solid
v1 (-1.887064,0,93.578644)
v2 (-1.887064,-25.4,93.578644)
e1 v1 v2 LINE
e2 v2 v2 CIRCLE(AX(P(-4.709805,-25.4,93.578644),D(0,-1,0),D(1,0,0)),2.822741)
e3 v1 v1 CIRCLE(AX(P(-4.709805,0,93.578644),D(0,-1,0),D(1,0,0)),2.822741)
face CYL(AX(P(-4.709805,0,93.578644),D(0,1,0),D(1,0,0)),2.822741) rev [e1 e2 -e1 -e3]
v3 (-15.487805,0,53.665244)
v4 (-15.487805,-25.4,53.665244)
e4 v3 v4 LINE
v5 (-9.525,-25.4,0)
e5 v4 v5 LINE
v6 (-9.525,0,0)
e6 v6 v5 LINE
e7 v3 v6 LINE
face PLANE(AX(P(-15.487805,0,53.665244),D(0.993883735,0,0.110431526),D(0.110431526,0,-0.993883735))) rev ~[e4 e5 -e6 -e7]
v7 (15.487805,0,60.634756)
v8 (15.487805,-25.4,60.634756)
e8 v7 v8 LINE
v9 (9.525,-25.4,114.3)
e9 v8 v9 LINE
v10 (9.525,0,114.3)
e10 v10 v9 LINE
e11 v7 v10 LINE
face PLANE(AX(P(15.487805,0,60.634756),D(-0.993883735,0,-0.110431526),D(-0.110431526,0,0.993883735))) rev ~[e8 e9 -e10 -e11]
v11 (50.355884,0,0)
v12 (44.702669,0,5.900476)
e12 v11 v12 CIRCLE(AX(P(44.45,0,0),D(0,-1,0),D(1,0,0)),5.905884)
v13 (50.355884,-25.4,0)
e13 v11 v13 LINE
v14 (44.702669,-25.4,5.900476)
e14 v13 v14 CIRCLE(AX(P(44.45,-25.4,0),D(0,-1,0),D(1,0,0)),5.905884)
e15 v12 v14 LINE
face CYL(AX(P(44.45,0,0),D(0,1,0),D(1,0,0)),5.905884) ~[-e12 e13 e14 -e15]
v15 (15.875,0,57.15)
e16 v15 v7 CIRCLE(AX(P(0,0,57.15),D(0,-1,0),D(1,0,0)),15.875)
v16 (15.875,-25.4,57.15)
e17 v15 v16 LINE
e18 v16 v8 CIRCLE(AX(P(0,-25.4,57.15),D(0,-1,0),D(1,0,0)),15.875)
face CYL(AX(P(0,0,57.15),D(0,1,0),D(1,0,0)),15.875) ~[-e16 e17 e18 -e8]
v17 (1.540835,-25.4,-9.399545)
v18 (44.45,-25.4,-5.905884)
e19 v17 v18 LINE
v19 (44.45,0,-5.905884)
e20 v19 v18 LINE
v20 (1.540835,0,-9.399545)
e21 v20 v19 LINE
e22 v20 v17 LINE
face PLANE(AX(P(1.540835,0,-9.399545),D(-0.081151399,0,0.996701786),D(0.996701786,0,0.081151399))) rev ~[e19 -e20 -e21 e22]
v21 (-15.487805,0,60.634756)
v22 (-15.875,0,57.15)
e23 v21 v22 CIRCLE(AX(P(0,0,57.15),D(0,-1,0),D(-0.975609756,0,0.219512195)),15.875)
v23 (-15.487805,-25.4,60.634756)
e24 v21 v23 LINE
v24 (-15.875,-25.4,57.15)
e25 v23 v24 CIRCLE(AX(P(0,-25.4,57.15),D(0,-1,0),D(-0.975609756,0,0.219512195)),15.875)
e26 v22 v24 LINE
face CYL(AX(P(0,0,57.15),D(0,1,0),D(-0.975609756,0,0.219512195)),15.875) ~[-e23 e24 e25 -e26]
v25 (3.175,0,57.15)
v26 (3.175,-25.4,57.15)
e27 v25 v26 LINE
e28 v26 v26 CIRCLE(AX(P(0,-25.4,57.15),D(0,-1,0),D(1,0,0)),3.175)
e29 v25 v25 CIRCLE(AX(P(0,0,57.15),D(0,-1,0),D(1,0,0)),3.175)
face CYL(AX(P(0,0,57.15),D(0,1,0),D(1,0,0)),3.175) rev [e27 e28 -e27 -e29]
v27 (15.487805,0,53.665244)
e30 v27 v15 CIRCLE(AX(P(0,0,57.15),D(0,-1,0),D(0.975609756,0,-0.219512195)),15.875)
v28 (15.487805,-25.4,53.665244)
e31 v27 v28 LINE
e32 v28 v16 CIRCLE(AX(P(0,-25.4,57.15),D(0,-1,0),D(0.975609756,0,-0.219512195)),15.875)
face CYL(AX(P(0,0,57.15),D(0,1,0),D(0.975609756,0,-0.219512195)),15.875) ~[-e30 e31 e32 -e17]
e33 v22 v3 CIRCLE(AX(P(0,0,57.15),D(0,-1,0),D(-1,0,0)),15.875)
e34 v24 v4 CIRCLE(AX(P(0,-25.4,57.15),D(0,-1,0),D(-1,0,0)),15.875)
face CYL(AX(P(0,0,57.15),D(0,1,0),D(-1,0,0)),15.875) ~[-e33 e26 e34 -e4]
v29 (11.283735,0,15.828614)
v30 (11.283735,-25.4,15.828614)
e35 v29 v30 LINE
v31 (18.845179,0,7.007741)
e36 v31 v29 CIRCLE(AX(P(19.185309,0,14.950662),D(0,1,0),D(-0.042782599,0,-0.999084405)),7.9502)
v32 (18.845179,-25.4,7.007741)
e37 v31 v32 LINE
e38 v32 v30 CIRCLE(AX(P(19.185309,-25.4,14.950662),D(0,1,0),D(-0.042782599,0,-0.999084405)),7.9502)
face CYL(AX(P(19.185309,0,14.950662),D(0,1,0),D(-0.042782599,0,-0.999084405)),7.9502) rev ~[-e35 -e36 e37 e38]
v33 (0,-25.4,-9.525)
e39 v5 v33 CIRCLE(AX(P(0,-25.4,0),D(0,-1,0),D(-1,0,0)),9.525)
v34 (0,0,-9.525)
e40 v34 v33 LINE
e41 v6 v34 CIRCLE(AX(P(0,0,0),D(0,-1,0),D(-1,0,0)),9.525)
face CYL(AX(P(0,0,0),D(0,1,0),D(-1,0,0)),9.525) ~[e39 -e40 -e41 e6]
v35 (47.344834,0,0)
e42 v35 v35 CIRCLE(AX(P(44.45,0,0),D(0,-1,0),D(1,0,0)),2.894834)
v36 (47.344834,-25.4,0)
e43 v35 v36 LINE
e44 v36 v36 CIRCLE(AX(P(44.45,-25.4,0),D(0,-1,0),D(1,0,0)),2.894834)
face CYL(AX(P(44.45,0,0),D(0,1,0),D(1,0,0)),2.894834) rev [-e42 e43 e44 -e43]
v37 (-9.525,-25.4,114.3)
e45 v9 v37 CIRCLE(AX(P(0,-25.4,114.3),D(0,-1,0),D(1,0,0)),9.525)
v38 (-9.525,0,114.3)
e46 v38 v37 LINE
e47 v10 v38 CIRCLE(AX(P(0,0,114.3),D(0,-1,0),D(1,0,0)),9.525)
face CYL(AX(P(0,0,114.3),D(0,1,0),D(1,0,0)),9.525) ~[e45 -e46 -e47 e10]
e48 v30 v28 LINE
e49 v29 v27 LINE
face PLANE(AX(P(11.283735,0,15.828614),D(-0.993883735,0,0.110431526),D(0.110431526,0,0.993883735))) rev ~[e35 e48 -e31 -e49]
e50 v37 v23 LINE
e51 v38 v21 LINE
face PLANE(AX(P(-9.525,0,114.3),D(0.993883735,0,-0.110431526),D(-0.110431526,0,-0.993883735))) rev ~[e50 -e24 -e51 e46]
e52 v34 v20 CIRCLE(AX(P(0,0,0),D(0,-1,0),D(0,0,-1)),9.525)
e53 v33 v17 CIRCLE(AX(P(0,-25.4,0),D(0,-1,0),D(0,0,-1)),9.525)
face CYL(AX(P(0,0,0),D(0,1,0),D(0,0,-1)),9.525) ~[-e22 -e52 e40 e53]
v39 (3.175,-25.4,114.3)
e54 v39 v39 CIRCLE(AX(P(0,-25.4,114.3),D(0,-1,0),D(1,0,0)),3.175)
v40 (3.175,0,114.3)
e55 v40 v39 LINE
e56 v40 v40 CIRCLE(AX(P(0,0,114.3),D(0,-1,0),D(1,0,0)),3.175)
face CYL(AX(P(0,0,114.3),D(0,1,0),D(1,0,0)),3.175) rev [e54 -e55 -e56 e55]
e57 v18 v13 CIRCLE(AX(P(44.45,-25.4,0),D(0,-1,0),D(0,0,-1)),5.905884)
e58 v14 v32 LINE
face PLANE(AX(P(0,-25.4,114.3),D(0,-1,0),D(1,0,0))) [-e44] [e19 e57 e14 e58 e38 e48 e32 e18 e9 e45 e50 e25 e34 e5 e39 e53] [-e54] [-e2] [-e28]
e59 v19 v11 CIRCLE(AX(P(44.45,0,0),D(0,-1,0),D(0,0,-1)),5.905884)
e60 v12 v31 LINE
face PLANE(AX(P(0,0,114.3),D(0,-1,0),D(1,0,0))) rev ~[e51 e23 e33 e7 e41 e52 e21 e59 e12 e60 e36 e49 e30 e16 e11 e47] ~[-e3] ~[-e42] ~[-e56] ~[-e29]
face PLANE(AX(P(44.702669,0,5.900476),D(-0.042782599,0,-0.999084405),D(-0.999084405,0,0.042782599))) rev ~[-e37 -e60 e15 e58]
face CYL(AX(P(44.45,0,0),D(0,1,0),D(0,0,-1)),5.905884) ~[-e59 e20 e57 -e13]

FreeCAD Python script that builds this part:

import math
import FreeCAD as App
import Part
import Sketcher
from FreeCAD import Vector
Q = App.Units.Quantity

doc = App.newDocument("Part")
body = doc.addObject("PartDesign::Body", "Body")

# Sketch on XZ plane
sketch1 = body.newObject("Sketcher::SketchObject", "Sketch")
sketch1.AttachmentSupport = (doc.getObject("XZ_Plane"), [""])
sketch1.MapMode = "FlatFace"
sketch1.addGeometry([
    Part.ArcOfCircle(Part.Circle(Vector(0, 114.3, 0), Vector(0, 0, 1), 9.5), math.radians(0), math.radians(180)),  # 0
    Part.LineSegment(Vector(-9.5, 114.3, 0), Vector(-15.5, 60.6, 0)),  # 1
    Part.ArcOfCircle(Part.Circle(Vector(0, 57.1, 0), Vector(0, 0, 1), 15.9), math.radians(167.32), math.radians(180)),  # 2
    Part.ArcOfCircle(Part.Circle(Vector(0, 57.2, 0), Vector(0, 0, 1), 15.9), math.radians(-180), math.radians(-167.32)),  # 3
    Part.LineSegment(Vector(-15.5, 53.7, 0), Vector(-9.5, 0, 0)),  # 4
    Part.ArcOfCircle(Part.Circle(Vector(0, 0, 0), Vector(0, 0, 1), 9.5), math.radians(180), math.radians(270)),  # 5
    Part.ArcOfCircle(Part.Circle(Vector(0, 0, 0), Vector(0, 0, 1), 9.5), math.radians(-90), math.radians(-80.69)),  # 6
    Part.LineSegment(Vector(1.5, -9.4, 0), Vector(44.5, -5.9, 0)),  # 7
    Part.ArcOfCircle(Part.Circle(Vector(44.5, 0, 0), Vector(0, 0, 1), 5.9), math.radians(-90), math.radians(0)),  # 8
    Part.ArcOfCircle(Part.Circle(Vector(44.5, 0, 0), Vector(0, 0, 1), 5.9), math.radians(0), math.radians(88)),  # 9
    Part.LineSegment(Vector(44.7, 5.9, 0), Vector(18.8, 7, 0)),  # 10
    Part.ArcOfCircle(Part.Circle(Vector(19.2, 15, 0), Vector(0, 0, 1), 8), math.radians(174), math.radians(268)),  # 11
    Part.LineSegment(Vector(11.3, 15.8, 0), Vector(15.5, 53.7, 0)),  # 12
    Part.ArcOfCircle(Part.Circle(Vector(0, 57.2, 0), Vector(0, 0, 1), 15.9), math.radians(-12.68), math.radians(0)),  # 13
    Part.ArcOfCircle(Part.Circle(Vector(0, 57.1, 0), Vector(0, 0, 1), 15.9), math.radians(0), math.radians(12.68)),  # 14
    Part.LineSegment(Vector(15.5, 60.6, 0), Vector(9.5, 114.3, 0)),  # 15
    Part.Circle(Vector(0, 57.1, 0), Vector(0, 0, 1), 3.2),  # 16
    Part.Circle(Vector(44.5, 0, 0), Vector(0, 0, 1), 2.9),  # 17
    Part.Circle(Vector(-4.7, 93.6, 0), Vector(0, 0, 1), 2.8),  # 18
    Part.Circle(Vector(0, 114.3, 0), Vector(0, 0, 1), 3.2),  # 19
], False)
sketch1.addConstraint([
    Sketcher.Constraint("Coincident", 0, 2, 1, 1),
    Sketcher.Constraint("Coincident", 1, 2, 2, 1),
    Sketcher.Constraint("Tangent", 2, 2, 3, 1),
    Sketcher.Constraint("Coincident", 3, 2, 4, 1),
    Sketcher.Constraint("Coincident", 4, 2, 5, 1),
    Sketcher.Constraint("Tangent", 5, 2, 6, 1),
    Sketcher.Constraint("Coincident", 6, 2, 7, 1),
    Sketcher.Constraint("Coincident", 7, 2, 8, 1),
    Sketcher.Constraint("Tangent", 8, 2, 9, 1),
    Sketcher.Constraint("Tangent", 9, 2, 10, 1),
    Sketcher.Constraint("Tangent", 10, 2, 11, 2),
    Sketcher.Constraint("Tangent", 11, 1, 12, 1),
    Sketcher.Constraint("Coincident", 12, 2, 13, 1),
    Sketcher.Constraint("Tangent", 13, 2, 14, 1),
    Sketcher.Constraint("Coincident", 14, 2, 15, 1),
    Sketcher.Constraint("Coincident", 15, 2, 0, 1),
    Sketcher.Constraint("Coincident", 5, 3, -1, 1),
    Sketcher.Constraint("Coincident", 13, 3, 2, 3),
    Sketcher.Constraint("Coincident", 16, 3, 2, 3),
    Sketcher.Constraint("Coincident", 17, 3, 8, 3),
    Sketcher.Constraint("Coincident", 19, 3, 0, 3),
    Sketcher.Constraint("Equal", 2, 3),
    Sketcher.Constraint("Equal", 0, 5),
    Sketcher.Constraint("Equal", 5, 6),
    Sketcher.Constraint("Equal", 8, 9),
    Sketcher.Constraint("Equal", 3, 13),
    Sketcher.Constraint("Equal", 13, 14),
    Sketcher.Constraint("Equal", 16, 19),
    Sketcher.Constraint("Symmetric", 3, 2, 12, 2, -2),
    Sketcher.Constraint("Symmetric", 0, 2, 15, 2, -2),
    Sketcher.Constraint("PointOnObject", 8, 3, -1),
    Sketcher.Constraint("PointOnObject", 4, 2, -1),
    Sketcher.Constraint("PointOnObject", 5, 2, -2),
    Sketcher.Constraint("PointOnObject", 8, 2, -1),
    Sketcher.Constraint("Parallel", 1, 12),
    Sketcher.Constraint("Parallel", 4, 15),
    Sketcher.Constraint("Horizontal", 19, 3, 0, 2),
    Sketcher.Constraint("Horizontal", 16, 3, 2, 2),
    Sketcher.Constraint("Horizontal", 2, 2, 13, 2),
    Sketcher.Constraint("Horizontal", 1, 2, 14, 2),
    Sketcher.Constraint("Vertical", 1, 2, 3, 2),
    Sketcher.Constraint("Vertical", 17, 3, 7, 2),
    Sketcher.Constraint("Diameter", 16, Q("0.25 in")),
    Sketcher.Constraint("Radius", 0, Q("0.375 in")),
    Sketcher.Constraint("Radius", 2, Q("0.625 in")),
    Sketcher.Constraint("Radius", 11, Q("0.313 in")),
    Sketcher.Constraint("DistanceY", -1, 1, 0, 3, Q("4.5 in")),
    Sketcher.Constraint("DistanceX", -1, 1, 8, 3, Q("1.75 in")),
    Sketcher.Constraint("Diameter", 17, Q("5.789669 mm")),
    Sketcher.Constraint("Diameter", 18, Q("5.645482 mm")),
    Sketcher.Constraint("Radius", 8, Q("5.905884 mm")),
    Sketcher.Constraint("DistanceX", -1, 1, 11, 3, Q("19.185309 mm")),
    Sketcher.Constraint("DistanceY", -1, 1, 11, 3, Q("14.950662 mm")),
    Sketcher.Constraint("DistanceY", 6, 2, 7, 2, Q("3.493662 mm")),
    Sketcher.Constraint("DistanceX", 18, 3, -1, 1, Q("4.709805 mm")),
    Sketcher.Constraint("DistanceY", -1, 1, 18, 3, Q("93.578644 mm")),
])
pad1 = body.newObject("PartDesign::Pad", "Pad")
pad1.Profile = sketch1
pad1.Length = Q("1 in")

doc.recompute()
